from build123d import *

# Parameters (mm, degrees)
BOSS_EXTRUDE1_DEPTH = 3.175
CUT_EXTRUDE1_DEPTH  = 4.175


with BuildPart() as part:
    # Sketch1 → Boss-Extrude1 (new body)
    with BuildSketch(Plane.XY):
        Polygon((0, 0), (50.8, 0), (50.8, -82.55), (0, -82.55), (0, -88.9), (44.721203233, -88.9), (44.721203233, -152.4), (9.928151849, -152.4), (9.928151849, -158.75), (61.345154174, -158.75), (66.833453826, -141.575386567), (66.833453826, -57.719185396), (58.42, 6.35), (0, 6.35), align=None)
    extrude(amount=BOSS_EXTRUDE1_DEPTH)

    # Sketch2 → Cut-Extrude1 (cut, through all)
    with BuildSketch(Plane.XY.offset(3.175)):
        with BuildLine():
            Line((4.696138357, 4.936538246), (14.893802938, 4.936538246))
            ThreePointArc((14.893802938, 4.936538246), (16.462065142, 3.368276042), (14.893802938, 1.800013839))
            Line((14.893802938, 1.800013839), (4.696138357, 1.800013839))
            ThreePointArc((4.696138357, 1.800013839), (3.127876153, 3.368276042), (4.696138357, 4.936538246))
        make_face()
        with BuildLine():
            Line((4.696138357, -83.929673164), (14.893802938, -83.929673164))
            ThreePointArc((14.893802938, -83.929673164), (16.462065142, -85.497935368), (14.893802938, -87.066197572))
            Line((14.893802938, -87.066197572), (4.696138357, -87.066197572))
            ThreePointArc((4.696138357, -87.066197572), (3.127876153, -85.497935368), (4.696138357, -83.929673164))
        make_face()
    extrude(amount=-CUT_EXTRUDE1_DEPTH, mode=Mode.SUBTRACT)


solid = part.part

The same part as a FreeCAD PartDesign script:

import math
import FreeCAD as App
import Part
import Sketcher
from FreeCAD import Vector
Q = App.Units.Quantity

doc = App.newDocument("Part")
body = doc.addObject("PartDesign::Body", "Body")

# Sketch on XY plane
sketch1 = doc.addObject("Sketcher::SketchObject", "Sketch")
body.addObject(sketch1)
sketch1.AttachmentSupport = (doc.XY_Plane, [""])
sketch1.MapMode = "FlatFace"
sketch1.addGeometry(Part.LineSegment(Vector(0, 0, 0), Vector(51, 0, 0)), False)
sketch1.addGeometry(Part.LineSegment(Vector(51, 0, 0), Vector(51, -83, 0)), False)
sketch1.addGeometry(Part.LineSegment(Vector(51, -83, 0), Vector(0, -83, 0)), False)
sketch1.addGeometry(Part.LineSegment(Vector(0, -83, 0), Vector(0, -89, 0)), False)
sketch1.addGeometry(Part.LineSegment(Vector(0, -89, 0), Vector(45, -89, 0)), False)
sketch1.addGeometry(Part.LineSegment(Vector(45, -89, 0), Vector(45, -152, 0)), False)
sketch1.addGeometry(Part.LineSegment(Vector(45, -152, 0), Vector(10, -152, 0)), False)
sketch1.addGeometry(Part.LineSegment(Vector(10, -152, 0), Vector(10, -159, 0)), False)
sketch1.addGeometry(Part.LineSegment(Vector(10, -159, 0), Vector(61, -159, 0)), False)
sketch1.addGeometry(Part.LineSegment(Vector(61, -159, 0), Vector(67, -142, 0)), False)
sketch1.addGeometry(Part.LineSegment(Vector(67, -142, 0), Vector(67, -58, 0)), False)
sketch1.addGeometry(Part.LineSegment(Vector(67, -58, 0), Vector(58, 6, 0)), False)
sketch1.addGeometry(Part.LineSegment(Vector(58, 6, 0), Vector(0, 6, 0)), False)
sketch1.addGeometry(Part.LineSegment(Vector(0, 6, 0), Vector(0, 0, 0)), False)
sketch1.addConstraint(Sketcher.Constraint("Coincident", 0, 2, 1, 1))
sketch1.addConstraint(Sketcher.Constraint("Coincident", 1, 2, 2, 1))
sketch1.addConstraint(Sketcher.Constraint("Coincident", 2, 2, 3, 1))
sketch1.addConstraint(Sketcher.Constraint("Coincident", 3, 2, 4, 1))
sketch1.addConstraint(Sketcher.Constraint("Coincident", 4, 2, 5, 1))
sketch1.addConstraint(Sketcher.Constraint("Coincident", 5, 2, 6, 1))
sketch1.addConstraint(Sketcher.Constraint("Coincident", 6, 2, 7, 1))
sketch1.addConstraint(Sketcher.Constraint("Coincident", 7, 2, 8, 1))
sketch1.addConstraint(Sketcher.Constraint("Coincident", 8, 2, 9, 1))
sketch1.addConstraint(Sketcher.Constraint("Coincident", 9, 2, 10, 1))
sketch1.addConstraint(Sketcher.Constraint("Coincident", 10, 2, 11, 1))
sketch1.addConstraint(Sketcher.Constraint("Coincident", 11, 2, 12, 1))
sketch1.addConstraint(Sketcher.Constraint("Coincident", 12, 2, 13, 1))
sketch1.addConstraint(Sketcher.Constraint("Coincident", 13, 2, 0, 1))
sketch1.addConstraint(Sketcher.Constraint("Horizontal", 0))
sketch1.addConstraint(Sketcher.Constraint("Vertical", 1))
sketch1.addConstraint(Sketcher.Constraint("Horizontal", 2))
sketch1.addConstraint(Sketcher.Constraint("Vertical", 3))
sketch1.addConstraint(Sketcher.Constraint("Horizontal", 4))
sketch1.addConstraint(Sketcher.Constraint("Vertical", 5))
sketch1.addConstraint(Sketcher.Constraint("Horizontal", 6))
sketch1.addConstraint(Sketcher.Constraint("Vertical", 7))
sketch1.addConstraint(Sketcher.Constraint("Horizontal", 8))
sketch1.addConstraint(Sketcher.Constraint("Vertical", 10))
sketch1.addConstraint(Sketcher.Constraint("Horizontal", 12))
sketch1.addConstraint(Sketcher.Constraint("Vertical", 13))
sketch1.addConstraint(Sketcher.Constraint("Coincident", 13, 2, -1, 1))
sketch1.addConstraint(Sketcher.Constraint("PointOnObject", 2, 2, -2))
sketch1.addConstraint(Sketcher.Constraint("Equal", 3, 7))
sketch1.addConstraint(Sketcher.Constraint("Equal", 7, 13))
sketch1.addConstraint(Sketcher.Constraint("DistanceX", 0, 1, 0, 2, Q("2 in")))
sketch1.addConstraint(Sketcher.Constraint("DistanceX", 12, 2, 12, 1, Q("2.3 in")))
sketch1.addConstraint(Sketcher.Constraint("DistanceY", 5, 2, 5, 1, Q("2.5 in")))
sketch1.addConstraint(Sketcher.Constraint("DistanceY", 5, 2, -1, 1, Q("6 in")))
sketch1.addConstraint(Sketcher.Constraint("DistanceY", 7, 2, 2, 2, Q("3 in")))
sketch1.addConstraint(Sketcher.Constraint("DistanceY", 10, 1, 10, 2, Q("83.856201 mm")))
sketch1.addConstraint(Sketcher.Constraint("DistanceX", 6, 2, 6, 1, Q("34.793051 mm")))
sketch1.addConstraint(Sketcher.Constraint("DistanceX", 8, 2, 9, 2, Q("5.4883 mm")))
sketch1.addConstraint(Sketcher.Constraint("DistanceX", 6, 2, 9, 2, Q("56.905302 mm")))
sketch1.addConstraint(Sketcher.Constraint("Distance", 9, Q("18.030219 mm")))
sketch1.addConstraint(Sketcher.Constraint("DistanceX", 4, 1, 4, 2, Q("44.721203 mm")))
pad1 = doc.addObject("PartDesign::Pad", "Pad")
body.addObject(pad1)
pad1.Profile = sketch1
pad1.Length = Q("0.125 in")

# Sketch on XY plane
sketch2 = doc.addObject("Sketcher::SketchObject", "Sketch001")
body.addObject(sketch2)
sketch2.AttachmentSupport = (doc.XY_Plane, [""])
sketch2.MapMode = "FlatFace"
sketch2.AttachmentOffset = App.Placement(Vector(0, 0, 0.125 * 25.4), App.Rotation())
sketch2.addGeometry(Part.LineSegment(Vector(14.9, 4.9, 0), Vector(4.7, 4.9, 0)), False)
sketch2.addGeometry(Part.ArcOfCircle(Part.Circle(Vector(4.7, 3.4, 0), Vector(0, 0, 1), 1.6), math.radians(90), math.radians(270)), False)
sketch2.addGeometry(Part.LineSegment(Vector(4.7, 1.8, 0), Vector(14.9, 1.8, 0)), False)
sketch2.addGeometry(Part.ArcOfCircle(Part.Circle(Vector(14.9, 3.4, 0), Vector(0, 0, 1), 1.6), math.radians(-90), math.radians(90)), False)
sketch2.addGeometry(Part.LineSegment(Vector(14.9, -83.9, 0), Vector(4.7, -83.9, 0)), False)
sketch2.addGeometry(Part.ArcOfCircle(Part.Circle(Vector(4.7, -85.5, 0), Vector(0, 0, 1), 1.6), math.radians(90), math.radians(270)), False)
sketch2.addGeometry(Part.LineSegment(Vector(4.7, -87.1, 0), Vector(14.9, -87.1, 0)), False)
sketch2.addGeometry(Part.ArcOfCircle(Part.Circle(Vector(14.9, -85.5, 0), Vector(0, 0, 1), 1.6), math.radians(-90), math.radians(90)), False)
sketch2.addConstraint(Sketcher.Constraint("Tangent", 0, 2, 1, 1))
sketch2.addConstraint(Sketcher.Constraint("Tangent", 1, 2, 2, 1))
sketch2.addConstraint(Sketcher.Constraint("Tangent", 2, 2, 3, 1))
sketch2.addConstraint(Sketcher.Constraint("Tangent", 3, 2, 0, 1))
sketch2.addConstraint(Sketcher.Constraint("Tangent", 4, 2, 5, 1))
sketch2.addConstraint(Sketcher.Constraint("Tangent", 5, 2, 6, 1))
sketch2.addConstraint(Sketcher.Constraint("Tangent", 6, 2, 7, 1))
sketch2.addConstraint(Sketcher.Constraint("Tangent", 7, 2, 4, 1))
sketch2.addConstraint(Sketcher.Constraint("Horizontal", 0))
sketch2.addConstraint(Sketcher.Constraint("Horizontal", 2))
sketch2.addConstraint(Sketcher.Constraint("Horizontal", 4))
sketch2.addConstraint(Sketcher.Constraint("Horizontal", 6))
sketch2.addConstraint(Sketcher.Constraint("Equal", 3, 5))
sketch2.addConstraint(Sketcher.Constraint("Vertical", 1, 3, 5, 3))
sketch2.addConstraint(Sketcher.Constraint("Vertical", 3, 3, 7, 3))
sketch2.addConstraint(Sketcher.Constraint("Radius", 1, Q("1.568262 mm")))
sketch2.addConstraint(Sketcher.Constraint("DistanceX", 0, 2, 0, 1, Q("10.197665 mm")))
sketch2.addConstraint(Sketcher.Constraint("DistanceX", -1, 1, 1, 3, Q("4.696138 mm")))
sketch2.addConstraint(Sketcher.Constraint("DistanceY", -1, 1, 0, 2, Q("4.936538 mm")))
sketch2.addConstraint(Sketcher.Constraint("DistanceY", 5, 3, 1, 3, Q("88.866211 mm")))
pocket1 = doc.addObject("PartDesign::Pocket", "Pocket")
body.addObject(pocket1)
pocket1.Profile = sketch2
pocket1.Type = "ThroughAll"

doc.recompute()
